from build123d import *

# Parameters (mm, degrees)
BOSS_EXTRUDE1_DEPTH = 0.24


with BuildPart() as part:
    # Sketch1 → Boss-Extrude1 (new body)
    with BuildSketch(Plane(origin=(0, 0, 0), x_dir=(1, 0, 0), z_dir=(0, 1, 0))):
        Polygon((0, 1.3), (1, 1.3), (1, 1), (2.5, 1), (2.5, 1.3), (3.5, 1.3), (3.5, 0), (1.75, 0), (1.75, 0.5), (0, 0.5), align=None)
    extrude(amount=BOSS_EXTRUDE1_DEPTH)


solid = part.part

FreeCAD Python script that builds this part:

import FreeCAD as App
import Part
import Sketcher
from FreeCAD import Vector
Q = App.Units.Quantity


def add_polygon(sketch, points):
    """Adds a closed chain of lines whose ends are joined by coincident constraints."""
    first, n = sketch.GeometryCount, len(points)
    for a, b in zip(points, points[1:] + points[:1]):
        sketch.addGeometry(Part.LineSegment(App.Vector(*a, 0), App.Vector(*b, 0)), False)
    for i in range(n):
        sketch.addConstraint(Sketcher.Constraint("Coincident", first + i, 2, first + (i + 1) % n, 1))

doc = App.newDocument("Part")
body = doc.addObject("PartDesign::Body", "Body")

# Sketch on XZ plane
sketch1 = doc.addObject("Sketcher::SketchObject", "Sketch")
body.addObject(sketch1)
sketch1.AttachmentSupport = (doc.XZ_Plane, [""])
sketch1.MapMode = "FlatFace"
add_polygon(sketch1, [(1, -1.3), (0, -1.3), (0, -0.5), (1.75, -0.5), (1.75, 0), (3.5, 0), (3.5, -1.3), (2.5, -1.3), (2.5, -1), (1, -1)])  # lines 0-9
sketch1.addConstraint(Sketcher.Constraint("Horizontal", 0))
sketch1.addConstraint(Sketcher.Constraint("Vertical", 1))
sketch1.addConstraint(Sketcher.Constraint("Horizontal", 2))
sketch1.addConstraint(Sketcher.Constraint("Vertical", 3))
sketch1.addConstraint(Sketcher.Constraint("Horizontal", 4))
sketch1.addConstraint(Sketcher.Constraint("Vertical", 5))
sketch1.addConstraint(Sketcher.Constraint("Horizontal", 6))
sketch1.addConstraint(Sketcher.Constraint("Vertical", 7))
sketch1.addConstraint(Sketcher.Constraint("Horizontal", 8))
sketch1.addConstraint(Sketcher.Constraint("Vertical", 9))
sketch1.addConstraint(Sketcher.Constraint("PointOnObject", 0, 2, -2))
sketch1.addConstraint(Sketcher.Constraint("PointOnObject", 3, 2, -1))
sketch1.addConstraint(Sketcher.Constraint("Horizontal", 0, 2, 5, 2))
sketch1.addConstraint(Sketcher.Constraint("Equal", 2, 4))
sketch1.addConstraint(Sketcher.Constraint("Equal", 0, 6))
sketch1.addConstraint(Sketcher.Constraint("DistanceX", 0, 2, 0, 1, Q("1 mm")))
sketch1.addConstraint(Sketcher.Constraint("DistanceX", 8, 2, 8, 1, Q("1.5 mm")))
sketch1.addConstraint(Sketcher.Constraint("DistanceY", 1, 1, 1, 2, Q("0.8 mm")))
sketch1.addConstraint(Sketcher.Constraint("DistanceY", 3, 1, 3, 2, Q("0.5 mm")))
sketch1.addConstraint(Sketcher.Constraint("DistanceY", 7, 1, 7, 2, Q("0.3 mm")))
pad1 = doc.addObject("PartDesign::Pad", "Pad")
body.addObject(pad1)
pad1.Profile = sketch1
pad1.Length = 0.24
pad1.Reversed = True

doc.recompute()
